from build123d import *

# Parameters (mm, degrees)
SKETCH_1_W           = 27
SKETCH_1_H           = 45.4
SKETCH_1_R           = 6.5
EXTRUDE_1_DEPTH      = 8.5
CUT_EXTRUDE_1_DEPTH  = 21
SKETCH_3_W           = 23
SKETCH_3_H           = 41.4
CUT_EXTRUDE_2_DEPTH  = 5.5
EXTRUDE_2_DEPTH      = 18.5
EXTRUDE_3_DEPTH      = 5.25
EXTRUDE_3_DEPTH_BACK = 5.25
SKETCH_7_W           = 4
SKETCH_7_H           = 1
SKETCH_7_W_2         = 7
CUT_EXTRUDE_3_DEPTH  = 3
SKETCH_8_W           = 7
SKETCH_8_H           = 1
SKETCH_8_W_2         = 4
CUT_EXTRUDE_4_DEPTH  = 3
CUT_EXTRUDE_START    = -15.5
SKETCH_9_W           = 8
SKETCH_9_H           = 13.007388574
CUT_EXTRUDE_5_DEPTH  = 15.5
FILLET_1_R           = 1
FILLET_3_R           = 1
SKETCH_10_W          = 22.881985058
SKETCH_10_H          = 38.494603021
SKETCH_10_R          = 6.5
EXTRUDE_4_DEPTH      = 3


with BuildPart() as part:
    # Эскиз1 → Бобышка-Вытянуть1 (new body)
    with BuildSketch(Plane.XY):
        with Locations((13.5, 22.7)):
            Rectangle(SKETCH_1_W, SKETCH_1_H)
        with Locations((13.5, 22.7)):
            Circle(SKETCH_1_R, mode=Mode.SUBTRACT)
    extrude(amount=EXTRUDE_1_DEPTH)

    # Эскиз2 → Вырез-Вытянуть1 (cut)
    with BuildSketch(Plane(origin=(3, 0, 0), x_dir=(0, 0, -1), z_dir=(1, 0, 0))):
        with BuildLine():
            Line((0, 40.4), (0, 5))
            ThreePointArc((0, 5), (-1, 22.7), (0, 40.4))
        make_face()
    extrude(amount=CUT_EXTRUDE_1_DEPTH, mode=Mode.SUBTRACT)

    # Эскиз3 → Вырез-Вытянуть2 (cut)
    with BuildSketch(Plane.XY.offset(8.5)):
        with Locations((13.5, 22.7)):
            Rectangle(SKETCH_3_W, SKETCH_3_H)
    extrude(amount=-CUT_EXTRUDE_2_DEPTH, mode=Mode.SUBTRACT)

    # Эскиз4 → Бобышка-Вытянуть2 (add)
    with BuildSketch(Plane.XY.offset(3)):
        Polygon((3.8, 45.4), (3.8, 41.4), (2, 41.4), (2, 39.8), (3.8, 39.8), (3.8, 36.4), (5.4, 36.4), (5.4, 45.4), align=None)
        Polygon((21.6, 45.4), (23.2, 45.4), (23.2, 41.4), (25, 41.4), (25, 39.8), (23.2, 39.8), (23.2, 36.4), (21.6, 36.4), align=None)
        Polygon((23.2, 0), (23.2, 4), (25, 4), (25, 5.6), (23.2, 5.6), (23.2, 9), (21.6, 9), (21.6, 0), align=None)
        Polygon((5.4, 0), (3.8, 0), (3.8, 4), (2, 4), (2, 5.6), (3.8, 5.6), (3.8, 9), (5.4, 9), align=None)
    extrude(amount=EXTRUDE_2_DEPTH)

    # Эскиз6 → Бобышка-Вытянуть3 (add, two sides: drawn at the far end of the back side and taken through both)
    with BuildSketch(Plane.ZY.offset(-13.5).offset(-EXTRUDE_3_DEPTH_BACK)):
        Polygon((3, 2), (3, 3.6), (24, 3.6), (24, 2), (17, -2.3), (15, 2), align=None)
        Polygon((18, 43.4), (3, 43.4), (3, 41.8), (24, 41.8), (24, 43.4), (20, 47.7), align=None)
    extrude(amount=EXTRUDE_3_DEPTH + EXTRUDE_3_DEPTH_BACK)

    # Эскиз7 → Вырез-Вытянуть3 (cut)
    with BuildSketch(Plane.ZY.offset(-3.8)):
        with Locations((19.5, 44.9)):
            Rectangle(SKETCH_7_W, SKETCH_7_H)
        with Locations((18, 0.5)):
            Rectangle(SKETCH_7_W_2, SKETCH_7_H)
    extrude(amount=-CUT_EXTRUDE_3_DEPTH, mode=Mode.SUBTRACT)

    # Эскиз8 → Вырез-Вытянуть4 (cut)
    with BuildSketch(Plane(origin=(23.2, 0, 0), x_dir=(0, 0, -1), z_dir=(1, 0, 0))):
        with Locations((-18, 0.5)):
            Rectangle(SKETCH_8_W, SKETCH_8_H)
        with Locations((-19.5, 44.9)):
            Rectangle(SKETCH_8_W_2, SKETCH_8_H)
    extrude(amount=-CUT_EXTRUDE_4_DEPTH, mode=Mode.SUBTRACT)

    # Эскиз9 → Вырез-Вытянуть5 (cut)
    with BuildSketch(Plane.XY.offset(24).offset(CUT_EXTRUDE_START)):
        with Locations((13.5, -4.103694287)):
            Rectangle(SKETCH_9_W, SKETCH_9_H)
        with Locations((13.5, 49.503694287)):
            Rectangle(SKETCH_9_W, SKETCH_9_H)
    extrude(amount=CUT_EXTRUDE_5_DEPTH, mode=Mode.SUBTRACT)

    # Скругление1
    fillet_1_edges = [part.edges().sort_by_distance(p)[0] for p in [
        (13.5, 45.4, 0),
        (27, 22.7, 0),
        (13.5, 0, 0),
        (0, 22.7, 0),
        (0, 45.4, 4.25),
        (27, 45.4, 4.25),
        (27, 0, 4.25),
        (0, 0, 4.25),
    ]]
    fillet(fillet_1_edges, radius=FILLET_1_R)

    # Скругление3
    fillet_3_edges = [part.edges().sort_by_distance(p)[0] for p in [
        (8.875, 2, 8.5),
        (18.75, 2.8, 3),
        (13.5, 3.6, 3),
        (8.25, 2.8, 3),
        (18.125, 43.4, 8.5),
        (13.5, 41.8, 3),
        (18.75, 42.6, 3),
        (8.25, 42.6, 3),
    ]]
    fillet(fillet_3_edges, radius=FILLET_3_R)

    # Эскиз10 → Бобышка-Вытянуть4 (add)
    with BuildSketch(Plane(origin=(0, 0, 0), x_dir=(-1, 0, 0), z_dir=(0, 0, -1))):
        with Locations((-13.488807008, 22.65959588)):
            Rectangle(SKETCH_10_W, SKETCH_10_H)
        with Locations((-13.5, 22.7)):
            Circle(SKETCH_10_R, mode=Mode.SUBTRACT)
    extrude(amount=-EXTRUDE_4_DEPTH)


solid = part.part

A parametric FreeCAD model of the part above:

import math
import FreeCAD as App
import Part
import Sketcher
Q = App.Units.Quantity


def edges_at(feature, points):
    """Names of the edges that pass closest to the given points."""
    edges = feature.Shape.Edges
    near = lambda p: min(range(len(edges)), key=lambda i: edges[i].distToShape(Part.Vertex(*p))[0])
    return sorted({f"Edge{near(p) + 1}" for p in points})


def add_polygon(sketch, points):
    """Adds a closed chain of lines whose ends are joined by coincident constraints."""
    first, n = sketch.GeometryCount, len(points)
    for a, b in zip(points, points[1:] + points[:1]):
        sketch.addGeometry(Part.LineSegment(App.Vector(*a, 0), App.Vector(*b, 0)), False)
    for i in range(n):
        sketch.addConstraint(Sketcher.Constraint("Coincident", first + i, 2, first + (i + 1) % n, 1))

doc = App.newDocument("Part")
body = doc.addObject("PartDesign::Body", "Body")

# Sketch on XY plane
sketch1 = body.newObject("Sketcher::SketchObject", "Sketch")
sketch1.AttachmentSupport = (doc.getObject("XY_Plane"), [""])
sketch1.MapMode = "FlatFace"
add_polygon(sketch1, [(0, 45.4), (0, 0), (27, 0), (27, 45.4)])  # lines 0-3
sketch1.addGeometry(Part.Circle(App.Vector(13.5, 22.7, 0), App.Vector(0, 0, 1), 6.5), False)  # 4
sketch1.addConstraint([
    Sketcher.Constraint("Vertical", 0),
    Sketcher.Constraint("Horizontal", 1),
    Sketcher.Constraint("Vertical", 2),
    Sketcher.Constraint("Horizontal", 3),
    Sketcher.Constraint("Coincident", 0, 2, -1, 1),
    Sketcher.Constraint("Diameter", 4, Q("13 mm")),
    Sketcher.Constraint("DistanceX", 1, 1, 1, 2, Q("27 mm")),
    Sketcher.Constraint("DistanceY", 0, 2, 0, 1, Q("45.4 mm")),
    Sketcher.Constraint("DistanceX", -1, 1, 4, 3, Q("13.5 mm")),
    Sketcher.Constraint("DistanceY", -1, 1, 4, 3, Q("22.7 mm")),
])
pad1 = body.newObject("PartDesign::Pad", "Pad")
pad1.Profile = sketch1
pad1.Length = 8.5

# Sketch on YZ plane
sketch2 = body.newObject("Sketcher::SketchObject", "Sketch001")
sketch2.AttachmentSupport = (doc.getObject("YZ_Plane"), [""])
sketch2.MapMode = "FlatFace"
sketch2.AttachmentOffset = App.Placement(App.Vector(0, 0, 3), App.Rotation())
sketch2.addGeometry([
    Part.LineSegment(App.Vector(5, 0, 0), App.Vector(40.4, 0, 0)),
    Part.ArcOfCircle(Part.Circle(App.Vector(22.7, -156.145, 0), App.Vector(0, 0, 1), 157.145), math.radians(83.532776), math.radians(96.467224)),
], False)
sketch2.addConstraint([
    Sketcher.Constraint("Coincident", 0, 1, 1, 2),
    Sketcher.Constraint("Coincident", 1, 1, 0, 2),
    Sketcher.Constraint("Horizontal", 0),
    Sketcher.Constraint("PointOnObject", 0, 1, -1),
    Sketcher.Constraint("DistanceX", 0, 1, 0, 2, Q("35.4 mm")),
    Sketcher.Constraint("DistanceX", -1, 1, 0, 1, Q("5 mm")),
    Sketcher.Constraint("Radius", 1, Q("157.145 mm")),
])
pocket1 = body.newObject("PartDesign::Pocket", "Pocket")
pocket1.Profile = sketch2
pocket1.Length = 21
pocket1.Reversed = True

# Sketch on XY plane
sketch3 = body.newObject("Sketcher::SketchObject", "Sketch002")
sketch3.AttachmentSupport = (doc.getObject("XY_Plane"), [""])
sketch3.MapMode = "FlatFace"
sketch3.AttachmentOffset = App.Placement(App.Vector(0, 0, 8.5), App.Rotation())
add_polygon(sketch3, [(2, 43.4), (2, 2), (25, 2), (25, 43.4)])  # lines 0-3
sketch3.addConstraint([
    Sketcher.Constraint("Vertical", 0),
    Sketcher.Constraint("Horizontal", 1),
    Sketcher.Constraint("Vertical", 2),
    Sketcher.Constraint("Horizontal", 3),
    Sketcher.Constraint("DistanceX", 1, 1, 1, 2, Q("23 mm")),
    Sketcher.Constraint("DistanceY", 0, 2, 0, 1, Q("41.4 mm")),
    Sketcher.Constraint("DistanceX", -1, 1, 0, 2, Q("2 mm")),
    Sketcher.Constraint("DistanceY", -1, 1, 0, 2, Q("2 mm")),
])
pocket2 = body.newObject("PartDesign::Pocket", "Pocket001")
pocket2.Profile = sketch3
pocket2.Length = 5.5

# Sketch on XY plane
sketch4 = body.newObject("Sketcher::SketchObject", "Sketch003")
sketch4.AttachmentSupport = (doc.getObject("XY_Plane"), [""])
sketch4.MapMode = "FlatFace"
sketch4.AttachmentOffset = App.Placement(App.Vector(0, 0, 3), App.Rotation())
add_polygon(sketch4, [(3.8, 45.4), (3.8, 41.4), (2, 41.4), (2, 39.8), (3.8, 39.8), (3.8, 36.4), (5.4, 36.4), (5.4, 45.4)])  # lines 0-7
add_polygon(sketch4, [(23.2, 45.4), (21.6, 45.4), (21.6, 36.4), (23.2, 36.4), (23.2, 39.8), (25, 39.8), (25, 41.4), (23.2, 41.4)])  # lines 8-15
add_polygon(sketch4, [(23.2, 0), (23.2, 4), (25, 4), (25, 5.6), (23.2, 5.6), (23.2, 9), (21.6, 9), (21.6, 0)])  # lines 16-23
add_polygon(sketch4, [(3.8, 0), (5.4, 0), (5.4, 9), (3.8, 9), (3.8, 5.6), (2, 5.6), (2, 4), (3.8, 4)])  # lines 24-31
sketch4.addConstraint([
    Sketcher.Constraint("Vertical", 0),
    Sketcher.Constraint("Horizontal", 1),
    Sketcher.Constraint("Vertical", 2),
    Sketcher.Constraint("Horizontal", 3),
    Sketcher.Constraint("Vertical", 4),
    Sketcher.Constraint("Horizontal", 5),
    Sketcher.Constraint("Vertical", 6),
    Sketcher.Constraint("Horizontal", 7),
    Sketcher.Constraint("Horizontal", 8),
    Sketcher.Constraint("Vertical", 9),
    Sketcher.Constraint("Horizontal", 10),
    Sketcher.Constraint("Vertical", 11),
    Sketcher.Constraint("Horizontal", 12),
    Sketcher.Constraint("Vertical", 13),
    Sketcher.Constraint("Horizontal", 14),
    Sketcher.Constraint("Vertical", 15),
    Sketcher.Constraint("Vertical", 16),
    Sketcher.Constraint("Horizontal", 17),
    Sketcher.Constraint("Vertical", 18),
    Sketcher.Constraint("Horizontal", 19),
    Sketcher.Constraint("Vertical", 20),
    Sketcher.Constraint("Horizontal", 21),
    Sketcher.Constraint("Vertical", 22),
    Sketcher.Constraint("Horizontal", 23),
    Sketcher.Constraint("Horizontal", 24),
    Sketcher.Constraint("Vertical", 25),
    Sketcher.Constraint("Horizontal", 26),
    Sketcher.Constraint("Vertical", 27),
    Sketcher.Constraint("Horizontal", 28),
    Sketcher.Constraint("Vertical", 29),
    Sketcher.Constraint("Horizontal", 30),
    Sketcher.Constraint("Vertical", 31),
    Sketcher.Constraint("PointOnObject", 22, 2, -1),
    Sketcher.Constraint("PointOnObject", 24, 2, -1),
    Sketcher.Constraint("Horizontal", 7, 2, 8, 2),
    Sketcher.Constraint("Horizontal", 5, 2, 9, 2),
    Sketcher.Constraint("Horizontal", 3, 2, 11, 2),
    Sketcher.Constraint("Horizontal", 1, 2, 13, 2),
    Sketcher.Constraint("Horizontal", 21, 2, 25, 2),
    Sketcher.Constraint("Horizontal", 19, 2, 27, 2),
    Sketcher.Constraint("Horizontal", 17, 2, 29, 2),
    Sketcher.Constraint("Vertical", 0, 2, 3, 2),
    Sketcher.Constraint("Vertical", 11, 2, 14, 2),
    Sketcher.Constraint("Vertical", 15, 2, 16, 2),
    Sketcher.Constraint("Vertical", 13, 2, 17, 2),
    Sketcher.Constraint("Vertical", 16, 2, 19, 2),
    Sketcher.Constraint("Vertical", 9, 2, 21, 2),
    Sketcher.Constraint("Vertical", 6, 2, 24, 2),
    Sketcher.Constraint("Vertical", 7, 2, 26, 2),
    Sketcher.Constraint("Vertical", 2, 2, 28, 2),
    Sketcher.Constraint("Vertical", 27, 2, 30, 2),
    Sketcher.Constraint("Equal", 7, 8),
    Sketcher.Constraint("Equal", 3, 12),
    Sketcher.Constraint("Equal", 26, 2),
    Sketcher.Constraint("Equal", 15, 16),
    Sketcher.Constraint("Equal", 13, 18),
    Sketcher.Constraint("Equal", 11, 20),
    Sketcher.Constraint("DistanceY", 0, 2, 0, 1, Q("4 mm")),
    Sketcher.Constraint("DistanceY", 6, 1, 6, 2, Q("9 mm")),
    Sketcher.Constraint("DistanceX", 1, 2, 1, 1, Q("1.8 mm")),
    Sketcher.Constraint("DistanceX", 5, 1, 5, 2, Q("1.6 mm")),
    Sketcher.Constraint("DistanceX", -1, 1, 1, 2, Q("2 mm")),
    Sketcher.Constraint("DistanceX", -1, 1, 12, 2, Q("25 mm")),
    Sketcher.Constraint("DistanceY", -1, 1, 0, 2, Q("41.4 mm")),
])
pad2 = body.newObject("PartDesign::Pad", "Pad001")
pad2.Profile = sketch4
pad2.Length = 18.5

# Sketch on YZ plane
sketch5 = body.newObject("Sketcher::SketchObject", "Sketch004")
sketch5.AttachmentSupport = (doc.getObject("YZ_Plane"), [""])
sketch5.MapMode = "FlatFace"
sketch5.AttachmentOffset = App.Placement(App.Vector(0, 0, 13.5), App.Rotation())
add_polygon(sketch5, [(3.6, 3), (2, 3), (2, 15), (-2.3, 17), (2, 24), (3.6, 24)])  # lines 0-5
add_polygon(sketch5, [(43.4, 18), (43.4, 3), (41.8, 3), (41.8, 24), (43.4, 24), (47.7, 20)])  # lines 6-11
sketch5.addConstraint([
    Sketcher.Constraint("Horizontal", 0),
    Sketcher.Constraint("Vertical", 1),
    Sketcher.Constraint("Horizontal", 4),
    Sketcher.Constraint("Vertical", 5),
    Sketcher.Constraint("Vertical", 6),
    Sketcher.Constraint("Horizontal", 7),
    Sketcher.Constraint("Vertical", 8),
    Sketcher.Constraint("Horizontal", 9),
    Sketcher.Constraint("Horizontal", 5, 2, 6, 2),
    Sketcher.Constraint("Horizontal", 4, 2, 8, 2),
    Sketcher.Constraint("Vertical", 1, 2, 3, 2),
    Sketcher.Constraint("Vertical", 6, 2, 9, 2),
    Sketcher.Constraint("Equal", 4, 7),
    Sketcher.Constraint("Equal", 2, 11),
    Sketcher.Constraint("DistanceY", 1, 1, 1, 2, Q("12 mm")),
    Sketcher.Constraint("DistanceY", 5, 2, 5, 1, Q("21 mm")),
    Sketcher.Constraint("DistanceY", 6, 2, 6, 1, Q("15 mm")),
    Sketcher.Constraint("DistanceX", 0, 2, 0, 1, Q("1.6 mm")),
    Sketcher.Constraint("DistanceX", -1, 1, 0, 2, Q("2 mm")),
    Sketcher.Constraint("DistanceY", -1, 1, 0, 2, Q("3 mm")),
    Sketcher.Constraint("DistanceY", -1, 1, 2, 2, Q("17 mm")),
    Sketcher.Constraint("DistanceY", -1, 1, 10, 2, Q("20 mm")),
    Sketcher.Constraint("DistanceX", 2, 2, -1, 1, Q("2.3 mm")),
    Sketcher.Constraint("DistanceX", -1, 1, 6, 2, Q("43.4 mm")),
])
pad3 = body.newObject("PartDesign::Pad", "Pad002")
pad3.Profile = sketch5
pad3.Type = "TwoLengths"
pad3.Length = 5.25
pad3.Length2 = 5.25
pad3.Reversed = True

# Sketch on YZ plane
sketch6 = body.newObject("Sketcher::SketchObject", "Sketch005")
sketch6.AttachmentSupport = (doc.getObject("YZ_Plane"), [""])
sketch6.MapMode = "FlatFace"
sketch6.AttachmentOffset = App.Placement(App.Vector(0, 0, 3.8), App.Rotation())
add_polygon(sketch6, [(45.4, 17.5), (44.4, 17.5), (44.4, 21.5), (45.4, 21.5)])  # lines 0-3
add_polygon(sketch6, [(1, 14.5), (0, 14.5), (0, 21.5), (1, 21.5)])  # lines 4-7
sketch6.addConstraint([
    Sketcher.Constraint("Horizontal", 0),
    Sketcher.Constraint("Vertical", 1),
    Sketcher.Constraint("Horizontal", 2),
    Sketcher.Constraint("Vertical", 3),
    Sketcher.Constraint("Horizontal", 4),
    Sketcher.Constraint("Vertical", 5),
    Sketcher.Constraint("Horizontal", 6),
    Sketcher.Constraint("Vertical", 7),
    Sketcher.Constraint("PointOnObject", 4, 2, -2),
    Sketcher.Constraint("Horizontal", 2, 2, 5, 2),
    Sketcher.Constraint("Equal", 2, 4),
    Sketcher.Constraint("DistanceX", 0, 2, 0, 1, Q("1 mm")),
    Sketcher.Constraint("DistanceY", 1, 1, 1, 2, Q("4 mm")),
    Sketcher.Constraint("DistanceY", 5, 1, 5, 2, Q("7 mm")),
    Sketcher.Constraint("DistanceX", -1, 1, 0, 2, Q("44.4 mm")),
    Sketcher.Constraint("DistanceY", -1, 1, 0, 2, Q("17.5 mm")),
])
pocket3 = body.newObject("PartDesign::Pocket", "Pocket002")
pocket3.Profile = sketch6
pocket3.Length = 3
pocket3.Reversed = True

# Sketch on YZ plane
sketch7 = body.newObject("Sketcher::SketchObject", "Sketch006")
sketch7.AttachmentSupport = (doc.getObject("YZ_Plane"), [""])
sketch7.MapMode = "FlatFace"
sketch7.AttachmentOffset = App.Placement(App.Vector(0, 0, 23.2), App.Rotation())
add_polygon(sketch7, [(1, 21.5), (0, 21.5), (0, 14.5), (1, 14.5)])  # lines 0-3
add_polygon(sketch7, [(45.4, 21.5), (44.4, 21.5), (44.4, 17.5), (45.4, 17.5)])  # lines 4-7
sketch7.addConstraint([
    Sketcher.Constraint("Horizontal", 0),
    Sketcher.Constraint("Vertical", 1),
    Sketcher.Constraint("Horizontal", 2),
    Sketcher.Constraint("Vertical", 3),
    Sketcher.Constraint("Horizontal", 4),
    Sketcher.Constraint("Vertical", 5),
    Sketcher.Constraint("Horizontal", 6),
    Sketcher.Constraint("Vertical", 7),
    Sketcher.Constraint("PointOnObject", 0, 2, -2),
    Sketcher.Constraint("Horizontal", 3, 2, 4, 2),
    Sketcher.Constraint("Equal", 2, 4),
    Sketcher.Constraint("DistanceX", 0, 2, 0, 1, Q("1 mm")),
    Sketcher.Constraint("DistanceY", 1, 2, 1, 1, Q("7 mm")),
    Sketcher.Constraint("DistanceY", 5, 2, 5, 1, Q("4 mm")),
    Sketcher.Constraint("DistanceY", -1, 1, 0, 2, Q("21.5 mm")),
    Sketcher.Constraint("DistanceX", -1, 1, 4, 2, Q("44.4 mm")),
])
pocket4 = body.newObject("PartDesign::Pocket", "Pocket003")
pocket4.Profile = sketch7
pocket4.Length = 3

# Sketch on XY plane
sketch8 = body.newObject("Sketcher::SketchObject", "Sketch007")
sketch8.AttachmentSupport = (doc.getObject("XY_Plane"), [""])
sketch8.MapMode = "FlatFace"
sketch8.AttachmentOffset = App.Placement(App.Vector(0, 0, 8.5), App.Rotation())
add_polygon(sketch8, [(9.5, 2.4), (9.5, -10.607389), (17.5, -10.607389), (17.5, 2.4)])  # lines 0-3
add_polygon(sketch8, [(9.5, 56.007389), (9.5, 43), (17.5, 43), (17.5, 56.007389)])  # lines 4-7
sketch8.addConstraint([
    Sketcher.Constraint("Vertical", 0),
    Sketcher.Constraint("Horizontal", 1),
    Sketcher.Constraint("Vertical", 2),
    Sketcher.Constraint("Horizontal", 3),
    Sketcher.Constraint("Vertical", 4),
    Sketcher.Constraint("Horizontal", 5),
    Sketcher.Constraint("Vertical", 6),
    Sketcher.Constraint("Horizontal", 7),
    Sketcher.Constraint("Vertical", 3, 2, 4, 2),
    Sketcher.Constraint("Vertical", 2, 2, 5, 2),
    Sketcher.Constraint("Equal", 2, 4),
    Sketcher.Constraint("DistanceX", 1, 1, 1, 2, Q("8 mm")),
    Sketcher.Constraint("DistanceY", -1, 1, 4, 2, Q("43 mm")),
    Sketcher.Constraint("DistanceX", -1, 1, 0, 2, Q("9.5 mm")),
    Sketcher.Constraint("DistanceY", -1, 1, 2, 2, Q("2.4 mm")),
    Sketcher.Constraint("DistanceY", 0, 2, 0, 1, Q("13.007389 mm")),
])
pocket5 = body.newObject("PartDesign::Pocket", "Pocket004")
pocket5.Profile = sketch8
pocket5.Length = 15.5
pocket5.Reversed = True
doc.recompute()

fillet = body.newObject("PartDesign::Fillet", "Fillet")
fillet.Base = (pocket5, edges_at(pocket5, [
    (13.5, 45.4, 0),
    (27, 22.7, 0),
    (13.5, 0, 0),
    (0, 22.7, 0),
    (0, 45.4, 4.25),
    (27, 45.4, 4.25),
    (27, 0, 4.25),
    (0, 0, 4.25),
]))
fillet.Radius = 1
doc.recompute()

fillet2 = body.newObject("PartDesign::Fillet", "Fillet001")
fillet2.Base = (fillet, edges_at(fillet, [
    (8.875, 2, 8.5),
    (18.75, 2.8, 3),
    (13.5, 3.6, 3),
    (8.25, 2.8, 3),
    (18.125, 43.4, 8.5),
    (13.5, 41.8, 3),
    (18.75, 42.6, 3),
    (8.25, 42.6, 3),
]))
fillet2.Radius = 1

# Sketch on XY plane
sketch9 = body.newObject("Sketcher::SketchObject", "Sketch008")
sketch9.AttachmentSupport = (doc.getObject("XY_Plane"), [""])
sketch9.MapMode = "FlatFace"
add_polygon(sketch9, [(24.9298, 41.906897), (24.9298, 3.412294), (2.047814, 3.412294), (2.047814, 41.906897)])  # lines 0-3
sketch9.addGeometry(Part.Circle(App.Vector(13.5, 22.7, 0), App.Vector(0, 0, 1), 6.5), False)  # 4
sketch9.addConstraint([
    Sketcher.Constraint("Vertical", 0),
    Sketcher.Constraint("Horizontal", 1),
    Sketcher.Constraint("Vertical", 2),
    Sketcher.Constraint("Horizontal", 3),
    Sketcher.Constraint("Diameter", 4, Q("13 mm")),
    Sketcher.Constraint("DistanceX", -1, 1, 4, 3, Q("13.5 mm")),
    Sketcher.Constraint("DistanceY", -1, 1, 4, 3, Q("22.7 mm")),
    Sketcher.Constraint("DistanceX", -1, 1, 0, 2, Q("24.9298 mm")),
    Sketcher.Constraint("DistanceX", 1, 2, 1, 1, Q("22.881985 mm")),
    Sketcher.Constraint("DistanceY", 0, 2, 0, 1, Q("38.494603 mm")),
    Sketcher.Constraint("DistanceY", -1, 1, 0, 2, Q("3.412294 mm")),
])
pad4 = body.newObject("PartDesign::Pad", "Pad003")
pad4.Profile = sketch9
pad4.Length = 3

doc.recompute()
